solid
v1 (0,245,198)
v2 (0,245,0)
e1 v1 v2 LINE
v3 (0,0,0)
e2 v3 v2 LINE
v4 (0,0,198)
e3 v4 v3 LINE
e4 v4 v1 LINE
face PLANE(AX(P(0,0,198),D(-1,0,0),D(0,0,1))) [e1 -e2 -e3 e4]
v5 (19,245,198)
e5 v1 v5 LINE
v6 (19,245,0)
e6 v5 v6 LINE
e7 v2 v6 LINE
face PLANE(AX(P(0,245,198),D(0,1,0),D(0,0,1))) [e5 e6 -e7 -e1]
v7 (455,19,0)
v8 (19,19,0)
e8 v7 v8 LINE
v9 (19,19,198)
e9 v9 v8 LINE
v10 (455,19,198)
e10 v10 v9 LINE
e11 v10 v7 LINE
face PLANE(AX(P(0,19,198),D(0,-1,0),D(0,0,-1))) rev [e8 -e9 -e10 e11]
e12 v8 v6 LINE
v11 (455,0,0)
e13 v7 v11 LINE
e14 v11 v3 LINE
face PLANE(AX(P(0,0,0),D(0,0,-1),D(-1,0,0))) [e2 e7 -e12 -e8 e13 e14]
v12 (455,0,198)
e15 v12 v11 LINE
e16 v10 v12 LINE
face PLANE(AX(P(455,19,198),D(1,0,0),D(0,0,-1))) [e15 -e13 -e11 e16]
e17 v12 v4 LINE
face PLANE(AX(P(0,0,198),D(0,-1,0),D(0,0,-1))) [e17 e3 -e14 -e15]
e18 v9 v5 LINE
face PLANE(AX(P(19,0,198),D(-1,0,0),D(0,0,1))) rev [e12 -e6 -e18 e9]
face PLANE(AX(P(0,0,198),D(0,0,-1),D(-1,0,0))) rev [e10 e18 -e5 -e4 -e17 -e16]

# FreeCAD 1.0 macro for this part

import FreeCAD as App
import Part
import Sketcher
from FreeCAD import Vector
Q = App.Units.Quantity


def add_polygon(sketch, points):
    """Adds a closed chain of lines whose ends are joined by coincident constraints."""
    first, n = sketch.GeometryCount, len(points)
    for a, b in zip(points, points[1:] + points[:1]):
        sketch.addGeometry(Part.LineSegment(App.Vector(*a, 0), App.Vector(*b, 0)), False)
    for i in range(n):
        sketch.addConstraint(Sketcher.Constraint("Coincident", first + i, 2, first + (i + 1) % n, 1))

doc = App.newDocument("Part")
body = doc.addObject("PartDesign::Body", "Body")

# Sketch on XY plane
sketch1 = body.newObject("Sketcher::SketchObject", "Sketch")
sketch1.AttachmentSupport = (doc.getObject("XY_Plane"), [""])
sketch1.MapMode = "FlatFace"
add_polygon(sketch1, [(0, 245), (0, 0), (455, 0), (455, 19), (19, 19), (19, 245)])  # lines 0-5
sketch1.addConstraint([
    Sketcher.Constraint("Vertical", 0),
    Sketcher.Constraint("Horizontal", 1),
    Sketcher.Constraint("Vertical", 2),
    Sketcher.Constraint("Horizontal", 3),
    Sketcher.Constraint("Vertical", 4),
    Sketcher.Constraint("Horizontal", 5),
    Sketcher.Constraint("Coincident", 0, 2, -1, 1),
    Sketcher.Constraint("Equal", 5, 2),
    Sketcher.Constraint("DistanceX", 1, 1, 1, 2, Q("455 mm")),
    Sketcher.Constraint("DistanceX", 3, 2, 3, 1, Q("436 mm")),
    Sketcher.Constraint("DistanceY", 0, 2, 0, 1, Q("245 mm")),
])
pad1 = body.newObject("PartDesign::Pad", "Pad")
pad1.Profile = sketch1
pad1.Length = 198

doc.recompute()
